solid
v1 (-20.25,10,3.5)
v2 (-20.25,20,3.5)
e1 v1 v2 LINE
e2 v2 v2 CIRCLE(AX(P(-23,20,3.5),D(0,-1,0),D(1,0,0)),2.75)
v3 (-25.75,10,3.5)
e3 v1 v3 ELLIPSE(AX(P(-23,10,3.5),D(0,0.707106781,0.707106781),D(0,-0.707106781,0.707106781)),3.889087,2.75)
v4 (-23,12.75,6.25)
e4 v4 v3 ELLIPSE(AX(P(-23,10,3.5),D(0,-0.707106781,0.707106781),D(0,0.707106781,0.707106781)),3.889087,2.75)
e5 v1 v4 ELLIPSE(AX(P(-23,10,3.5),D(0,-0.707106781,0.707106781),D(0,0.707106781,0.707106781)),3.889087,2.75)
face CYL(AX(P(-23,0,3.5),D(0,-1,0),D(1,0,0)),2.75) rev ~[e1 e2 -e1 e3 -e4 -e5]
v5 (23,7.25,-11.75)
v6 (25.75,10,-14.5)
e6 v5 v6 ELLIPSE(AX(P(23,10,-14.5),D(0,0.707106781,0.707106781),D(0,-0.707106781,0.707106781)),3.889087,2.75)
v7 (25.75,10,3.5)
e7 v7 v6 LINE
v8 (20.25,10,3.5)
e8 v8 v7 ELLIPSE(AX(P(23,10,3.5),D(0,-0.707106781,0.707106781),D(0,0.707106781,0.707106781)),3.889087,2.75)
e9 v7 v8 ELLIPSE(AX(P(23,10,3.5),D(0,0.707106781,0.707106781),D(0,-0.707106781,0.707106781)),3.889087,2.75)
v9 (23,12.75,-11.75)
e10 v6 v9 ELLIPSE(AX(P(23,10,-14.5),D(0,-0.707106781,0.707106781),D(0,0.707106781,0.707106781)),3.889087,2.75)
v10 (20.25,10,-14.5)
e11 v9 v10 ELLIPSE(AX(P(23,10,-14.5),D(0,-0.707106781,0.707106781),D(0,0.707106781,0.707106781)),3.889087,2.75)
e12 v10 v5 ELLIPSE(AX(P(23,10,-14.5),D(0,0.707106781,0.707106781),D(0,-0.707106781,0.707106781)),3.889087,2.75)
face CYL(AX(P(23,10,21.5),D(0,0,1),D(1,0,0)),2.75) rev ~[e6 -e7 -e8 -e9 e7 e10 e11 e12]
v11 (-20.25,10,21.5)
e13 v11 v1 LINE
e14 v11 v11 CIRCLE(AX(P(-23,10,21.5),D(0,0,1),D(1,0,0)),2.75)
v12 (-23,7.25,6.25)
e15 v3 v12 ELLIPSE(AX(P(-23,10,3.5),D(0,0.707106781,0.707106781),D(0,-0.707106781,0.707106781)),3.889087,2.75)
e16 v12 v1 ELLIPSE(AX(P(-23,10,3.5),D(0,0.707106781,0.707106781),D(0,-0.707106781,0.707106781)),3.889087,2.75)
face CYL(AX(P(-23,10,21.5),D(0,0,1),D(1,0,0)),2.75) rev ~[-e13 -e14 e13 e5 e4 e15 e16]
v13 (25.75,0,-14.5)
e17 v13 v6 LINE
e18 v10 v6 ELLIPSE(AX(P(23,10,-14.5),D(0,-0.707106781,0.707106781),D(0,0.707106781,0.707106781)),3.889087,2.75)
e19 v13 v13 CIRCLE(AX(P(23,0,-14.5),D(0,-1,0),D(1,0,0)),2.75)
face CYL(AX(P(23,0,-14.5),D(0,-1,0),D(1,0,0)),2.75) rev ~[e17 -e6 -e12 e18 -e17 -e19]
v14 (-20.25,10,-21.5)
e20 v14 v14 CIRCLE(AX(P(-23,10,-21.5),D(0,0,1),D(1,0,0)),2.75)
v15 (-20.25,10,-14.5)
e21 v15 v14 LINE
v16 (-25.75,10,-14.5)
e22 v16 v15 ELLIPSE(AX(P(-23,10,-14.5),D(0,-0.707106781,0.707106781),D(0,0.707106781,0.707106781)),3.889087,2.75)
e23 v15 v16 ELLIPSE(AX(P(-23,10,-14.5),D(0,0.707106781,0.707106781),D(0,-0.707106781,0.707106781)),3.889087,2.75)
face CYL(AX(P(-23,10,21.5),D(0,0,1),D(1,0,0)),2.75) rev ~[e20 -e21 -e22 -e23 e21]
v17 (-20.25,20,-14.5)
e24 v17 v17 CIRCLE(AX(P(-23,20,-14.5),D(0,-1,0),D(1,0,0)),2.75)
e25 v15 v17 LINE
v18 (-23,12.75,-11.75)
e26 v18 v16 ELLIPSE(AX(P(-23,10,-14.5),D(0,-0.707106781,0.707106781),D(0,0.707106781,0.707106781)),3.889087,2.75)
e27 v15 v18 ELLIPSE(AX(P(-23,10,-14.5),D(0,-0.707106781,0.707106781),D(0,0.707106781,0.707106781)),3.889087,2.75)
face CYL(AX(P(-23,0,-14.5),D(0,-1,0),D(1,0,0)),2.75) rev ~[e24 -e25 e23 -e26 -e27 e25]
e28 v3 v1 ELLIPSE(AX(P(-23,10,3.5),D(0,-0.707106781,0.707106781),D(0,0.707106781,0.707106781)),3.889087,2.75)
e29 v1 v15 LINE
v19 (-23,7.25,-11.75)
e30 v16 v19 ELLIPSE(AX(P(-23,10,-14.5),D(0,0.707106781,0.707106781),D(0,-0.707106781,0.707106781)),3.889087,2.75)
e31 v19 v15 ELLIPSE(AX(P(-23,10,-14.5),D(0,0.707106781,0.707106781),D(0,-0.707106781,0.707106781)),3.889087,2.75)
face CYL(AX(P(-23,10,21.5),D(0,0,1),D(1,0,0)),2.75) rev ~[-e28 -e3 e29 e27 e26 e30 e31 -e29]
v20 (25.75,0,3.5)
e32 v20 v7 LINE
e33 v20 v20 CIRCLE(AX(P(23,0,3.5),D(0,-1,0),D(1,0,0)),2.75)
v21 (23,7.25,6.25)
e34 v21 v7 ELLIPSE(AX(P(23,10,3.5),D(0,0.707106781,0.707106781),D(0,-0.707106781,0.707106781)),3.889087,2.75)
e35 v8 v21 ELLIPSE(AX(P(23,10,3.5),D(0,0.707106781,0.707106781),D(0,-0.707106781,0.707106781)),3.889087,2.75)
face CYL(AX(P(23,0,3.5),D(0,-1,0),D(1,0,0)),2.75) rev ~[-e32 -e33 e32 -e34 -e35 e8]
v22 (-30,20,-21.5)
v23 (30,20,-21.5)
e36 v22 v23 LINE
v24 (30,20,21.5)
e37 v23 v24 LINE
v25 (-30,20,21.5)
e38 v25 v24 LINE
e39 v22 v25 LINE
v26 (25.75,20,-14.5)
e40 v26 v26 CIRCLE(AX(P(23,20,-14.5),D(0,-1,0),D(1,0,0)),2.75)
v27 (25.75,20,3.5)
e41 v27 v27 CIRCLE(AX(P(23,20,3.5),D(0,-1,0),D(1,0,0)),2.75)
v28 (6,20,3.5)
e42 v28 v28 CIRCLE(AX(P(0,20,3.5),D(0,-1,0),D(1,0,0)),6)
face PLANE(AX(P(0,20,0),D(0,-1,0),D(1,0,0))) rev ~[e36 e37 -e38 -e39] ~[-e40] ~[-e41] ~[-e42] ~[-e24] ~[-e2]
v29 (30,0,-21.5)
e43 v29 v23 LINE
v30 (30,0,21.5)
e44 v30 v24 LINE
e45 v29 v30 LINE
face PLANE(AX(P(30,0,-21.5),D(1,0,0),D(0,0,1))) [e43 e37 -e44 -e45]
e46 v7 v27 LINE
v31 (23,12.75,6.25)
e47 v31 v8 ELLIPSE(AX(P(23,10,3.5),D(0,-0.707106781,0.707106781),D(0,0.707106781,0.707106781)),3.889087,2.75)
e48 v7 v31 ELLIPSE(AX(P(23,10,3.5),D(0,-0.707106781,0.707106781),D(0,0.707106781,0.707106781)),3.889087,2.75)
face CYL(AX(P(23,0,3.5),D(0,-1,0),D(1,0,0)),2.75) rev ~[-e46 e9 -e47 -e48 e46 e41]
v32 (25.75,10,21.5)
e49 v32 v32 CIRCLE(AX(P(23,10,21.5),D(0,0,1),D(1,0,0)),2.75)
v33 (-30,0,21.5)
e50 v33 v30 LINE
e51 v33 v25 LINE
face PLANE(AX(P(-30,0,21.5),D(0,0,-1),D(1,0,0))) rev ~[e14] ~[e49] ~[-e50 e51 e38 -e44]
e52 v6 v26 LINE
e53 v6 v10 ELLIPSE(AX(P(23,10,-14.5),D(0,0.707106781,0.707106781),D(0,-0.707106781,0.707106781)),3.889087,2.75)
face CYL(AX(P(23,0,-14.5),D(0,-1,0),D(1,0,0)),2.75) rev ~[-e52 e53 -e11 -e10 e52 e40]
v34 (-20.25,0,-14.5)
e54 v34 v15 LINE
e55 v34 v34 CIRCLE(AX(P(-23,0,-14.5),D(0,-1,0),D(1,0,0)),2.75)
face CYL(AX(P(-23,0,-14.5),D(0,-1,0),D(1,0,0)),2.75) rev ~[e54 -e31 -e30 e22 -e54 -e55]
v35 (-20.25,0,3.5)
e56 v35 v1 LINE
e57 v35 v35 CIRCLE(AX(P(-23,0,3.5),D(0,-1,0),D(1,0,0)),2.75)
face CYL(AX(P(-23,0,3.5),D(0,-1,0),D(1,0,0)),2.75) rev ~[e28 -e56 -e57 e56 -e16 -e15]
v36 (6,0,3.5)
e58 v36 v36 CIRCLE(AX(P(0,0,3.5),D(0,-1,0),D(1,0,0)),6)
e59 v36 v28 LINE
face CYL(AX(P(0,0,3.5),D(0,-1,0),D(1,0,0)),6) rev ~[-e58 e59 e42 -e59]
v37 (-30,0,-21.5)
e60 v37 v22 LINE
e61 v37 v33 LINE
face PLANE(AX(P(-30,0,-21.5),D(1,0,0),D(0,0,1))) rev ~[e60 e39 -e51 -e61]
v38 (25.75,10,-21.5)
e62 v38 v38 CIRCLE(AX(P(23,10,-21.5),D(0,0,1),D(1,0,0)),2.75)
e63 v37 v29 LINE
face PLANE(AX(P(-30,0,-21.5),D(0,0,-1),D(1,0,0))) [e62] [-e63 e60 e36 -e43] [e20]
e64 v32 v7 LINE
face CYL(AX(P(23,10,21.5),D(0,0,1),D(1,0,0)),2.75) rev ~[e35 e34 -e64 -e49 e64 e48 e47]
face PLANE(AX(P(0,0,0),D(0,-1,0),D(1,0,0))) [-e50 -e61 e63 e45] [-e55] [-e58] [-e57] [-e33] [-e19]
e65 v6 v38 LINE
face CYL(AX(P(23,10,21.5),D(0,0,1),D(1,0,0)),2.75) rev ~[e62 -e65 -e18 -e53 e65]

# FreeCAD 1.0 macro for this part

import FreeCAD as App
import Part
import Sketcher


def add_polygon(sketch, points):
    """Adds a closed chain of lines whose ends are joined by coincident constraints."""
    first, n = sketch.GeometryCount, len(points)
    for a, b in zip(points, points[1:] + points[:1]):
        sketch.addGeometry(Part.LineSegment(App.Vector(*a, 0), App.Vector(*b, 0)), False)
    for i in range(n):
        sketch.addConstraint(Sketcher.Constraint("Coincident", first + i, 2, first + (i + 1) % n, 1))

doc = App.newDocument("Part")
body = doc.addObject("PartDesign::Body", "Body")

sketch1 = body.newObject("Sketcher::SketchObject", "Sketch")
sketch1.AttachmentSupport = (doc.getObject("XZ_Plane"), [""])
sketch1.MapMode = "FlatFace"
add_polygon(sketch1, [(-30, 22), (-30, -22), (30, -22), (30, 22)])
sketch1.addGeometry(Part.Circle(App.Vector(0, 4, 0), App.Vector(0, 0, 1), 6), False)
sketch1.addConstraint(Sketcher.Constraint("Vertical", 0))
sketch1.addConstraint(Sketcher.Constraint("Horizontal", 1))
sketch1.addConstraint(Sketcher.Constraint("Vertical", 2))
sketch1.addConstraint(Sketcher.Constraint("Horizontal", 3))
sketch1.addConstraint(Sketcher.Constraint("Symmetric", 0, 2, 2, 2, -1, 1))
sketch1.addConstraint(Sketcher.Constraint("PointOnObject", 4, 3, -2))
sketch1.addConstraint(Sketcher.Constraint("Diameter", 4, 12.0))
sketch1.addConstraint(Sketcher.Constraint("DistanceX", 1, 1, 1, 2, 60.0))
sketch1.addConstraint(Sketcher.Constraint("DistanceY", 0, 2, 0, 1, 43.0))
sketch1.addConstraint(Sketcher.Constraint("DistanceY", 0, 2, 4, 3, 25.0))
pad1 = body.newObject("PartDesign::Pad", "Pad")
pad1.Profile = sketch1
pad1.Length = 20
pad1.Reversed = True

sketch2 = body.newObject("Sketcher::SketchObject", "Sketch001")
sketch2.AttachmentSupport = (doc.getObject("XY_Plane"), [""])
sketch2.MapMode = "FlatFace"
sketch2.AttachmentOffset = App.Placement(App.Vector(0, 0, 21.5), App.Rotation())
sketch2.addGeometry(Part.Circle(App.Vector(-23, 10, 0), App.Vector(0, 0, 1), 2.8), False)
sketch2.addGeometry(Part.Circle(App.Vector(23, 10, 0), App.Vector(0, 0, 1), 2.8), False)
sketch2.addConstraint(Sketcher.Constraint("Equal", 0, 1))
sketch2.addConstraint(Sketcher.Constraint("Symmetric", 0, 3, 1, 3, -2))
sketch2.addConstraint(Sketcher.Constraint("Diameter", 0, 5.5))
sketch2.addConstraint(Sketcher.Constraint("DistanceX", 0, 3, -1, 1, 23.0))
sketch2.addConstraint(Sketcher.Constraint("DistanceY", -1, 1, 0, 3, 10.0))
pocket1 = body.newObject("PartDesign::Pocket", "Pocket")
pocket1.Profile = sketch2
pocket1.Type = "ThroughAll"

sketch3 = body.newObject("Sketcher::SketchObject", "Sketch002")
sketch3.AttachmentSupport = (doc.getObject("XZ_Plane"), [""])
sketch3.MapMode = "FlatFace"
sketch3.addGeometry(Part.Circle(App.Vector(23, 3.5, 0), App.Vector(0, 0, 1), 2.8), False)
sketch3.addGeometry(Part.Circle(App.Vector(-23, -14.5, 0), App.Vector(0, 0, 1), 2.8), False)
sketch3.addGeometry(Part.Circle(App.Vector(23, -14.5, 0), App.Vector(0, 0, 1), 2.8), False)
sketch3.addGeometry(Part.Circle(App.Vector(-23, 3.5, 0), App.Vector(0, 0, 1), 2.8), False)
sketch3.addConstraint(Sketcher.Constraint("Equal", 0, 1))
sketch3.addConstraint(Sketcher.Constraint("Equal", 1, 2))
sketch3.addConstraint(Sketcher.Constraint("Equal", 2, 3))
sketch3.addConstraint(Sketcher.Constraint("Symmetric", 1, 3, 2, 3, -2))
sketch3.addConstraint(Sketcher.Constraint("Symmetric", 0, 3, 3, 3, -2))
sketch3.addConstraint(Sketcher.Constraint("Vertical", 0, 3, 2, 3))
sketch3.addConstraint(Sketcher.Constraint("Diameter", 0, 5.5))
sketch3.addConstraint(Sketcher.Constraint("DistanceX", -1, 1, 0, 3, 23.0))
sketch3.addConstraint(Sketcher.Constraint("DistanceY", 1, 3, 0, 3, 18.0))
sketch3.addConstraint(Sketcher.Constraint("DistanceY", -1, 1, 0, 3, 3.5))
pocket2 = body.newObject("PartDesign::Pocket", "Pocket001")
pocket2.Profile = sketch3
pocket2.Type = "ThroughAll"

doc.recompute()
